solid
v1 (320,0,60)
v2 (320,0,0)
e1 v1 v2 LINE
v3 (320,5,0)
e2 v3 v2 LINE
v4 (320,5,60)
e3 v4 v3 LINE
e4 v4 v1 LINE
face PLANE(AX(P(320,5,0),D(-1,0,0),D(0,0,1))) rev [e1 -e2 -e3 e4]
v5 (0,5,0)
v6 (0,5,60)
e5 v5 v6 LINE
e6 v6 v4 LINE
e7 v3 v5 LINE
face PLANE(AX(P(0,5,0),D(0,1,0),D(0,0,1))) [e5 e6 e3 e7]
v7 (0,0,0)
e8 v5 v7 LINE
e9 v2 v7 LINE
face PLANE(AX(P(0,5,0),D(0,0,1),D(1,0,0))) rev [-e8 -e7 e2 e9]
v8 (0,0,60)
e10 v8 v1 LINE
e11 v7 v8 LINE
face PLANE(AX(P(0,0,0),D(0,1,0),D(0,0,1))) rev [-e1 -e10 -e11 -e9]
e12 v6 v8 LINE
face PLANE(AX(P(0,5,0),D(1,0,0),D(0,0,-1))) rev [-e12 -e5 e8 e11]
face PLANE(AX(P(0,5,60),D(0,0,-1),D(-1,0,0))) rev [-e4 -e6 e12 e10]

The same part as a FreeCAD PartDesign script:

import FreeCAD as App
import Part
import Sketcher
Q = App.Units.Quantity


def add_polygon(sketch, points):
    """Adds a closed chain of lines whose ends are joined by coincident constraints."""
    first, n = sketch.GeometryCount, len(points)
    for a, b in zip(points, points[1:] + points[:1]):
        sketch.addGeometry(Part.LineSegment(App.Vector(*a, 0), App.Vector(*b, 0)), False)
    for i in range(n):
        sketch.addConstraint(Sketcher.Constraint("Coincident", first + i, 2, first + (i + 1) % n, 1))

doc = App.newDocument("Part")
body = doc.addObject("PartDesign::Body", "Body")

sketch1 = body.newObject("Sketcher::SketchObject", "Sketch")
sketch1.AttachmentSupport = (doc.getObject("XZ_Plane"), [""])
sketch1.MapMode = "FlatFace"
add_polygon(sketch1, [(0, 0), (0, 60), (320, 60), (320, 0)])
sketch1.addConstraint(Sketcher.Constraint("Vertical", 0))
sketch1.addConstraint(Sketcher.Constraint("Horizontal", 1))
sketch1.addConstraint(Sketcher.Constraint("Vertical", 2))
sketch1.addConstraint(Sketcher.Constraint("Horizontal", 3))
sketch1.addConstraint(Sketcher.Constraint("Coincident", 3, 2, -1, 1))
sketch1.addConstraint(Sketcher.Constraint("DistanceX", 1, 1, 1, 2, Q("320 mm")))
sketch1.addConstraint(Sketcher.Constraint("DistanceY", 0, 1, 0, 2, Q("60 mm")))
pad1 = body.newObject("PartDesign::Pad", "Pad")
pad1.Profile = sketch1
pad1.Length = 5
pad1.Reversed = True

doc.recompute()
